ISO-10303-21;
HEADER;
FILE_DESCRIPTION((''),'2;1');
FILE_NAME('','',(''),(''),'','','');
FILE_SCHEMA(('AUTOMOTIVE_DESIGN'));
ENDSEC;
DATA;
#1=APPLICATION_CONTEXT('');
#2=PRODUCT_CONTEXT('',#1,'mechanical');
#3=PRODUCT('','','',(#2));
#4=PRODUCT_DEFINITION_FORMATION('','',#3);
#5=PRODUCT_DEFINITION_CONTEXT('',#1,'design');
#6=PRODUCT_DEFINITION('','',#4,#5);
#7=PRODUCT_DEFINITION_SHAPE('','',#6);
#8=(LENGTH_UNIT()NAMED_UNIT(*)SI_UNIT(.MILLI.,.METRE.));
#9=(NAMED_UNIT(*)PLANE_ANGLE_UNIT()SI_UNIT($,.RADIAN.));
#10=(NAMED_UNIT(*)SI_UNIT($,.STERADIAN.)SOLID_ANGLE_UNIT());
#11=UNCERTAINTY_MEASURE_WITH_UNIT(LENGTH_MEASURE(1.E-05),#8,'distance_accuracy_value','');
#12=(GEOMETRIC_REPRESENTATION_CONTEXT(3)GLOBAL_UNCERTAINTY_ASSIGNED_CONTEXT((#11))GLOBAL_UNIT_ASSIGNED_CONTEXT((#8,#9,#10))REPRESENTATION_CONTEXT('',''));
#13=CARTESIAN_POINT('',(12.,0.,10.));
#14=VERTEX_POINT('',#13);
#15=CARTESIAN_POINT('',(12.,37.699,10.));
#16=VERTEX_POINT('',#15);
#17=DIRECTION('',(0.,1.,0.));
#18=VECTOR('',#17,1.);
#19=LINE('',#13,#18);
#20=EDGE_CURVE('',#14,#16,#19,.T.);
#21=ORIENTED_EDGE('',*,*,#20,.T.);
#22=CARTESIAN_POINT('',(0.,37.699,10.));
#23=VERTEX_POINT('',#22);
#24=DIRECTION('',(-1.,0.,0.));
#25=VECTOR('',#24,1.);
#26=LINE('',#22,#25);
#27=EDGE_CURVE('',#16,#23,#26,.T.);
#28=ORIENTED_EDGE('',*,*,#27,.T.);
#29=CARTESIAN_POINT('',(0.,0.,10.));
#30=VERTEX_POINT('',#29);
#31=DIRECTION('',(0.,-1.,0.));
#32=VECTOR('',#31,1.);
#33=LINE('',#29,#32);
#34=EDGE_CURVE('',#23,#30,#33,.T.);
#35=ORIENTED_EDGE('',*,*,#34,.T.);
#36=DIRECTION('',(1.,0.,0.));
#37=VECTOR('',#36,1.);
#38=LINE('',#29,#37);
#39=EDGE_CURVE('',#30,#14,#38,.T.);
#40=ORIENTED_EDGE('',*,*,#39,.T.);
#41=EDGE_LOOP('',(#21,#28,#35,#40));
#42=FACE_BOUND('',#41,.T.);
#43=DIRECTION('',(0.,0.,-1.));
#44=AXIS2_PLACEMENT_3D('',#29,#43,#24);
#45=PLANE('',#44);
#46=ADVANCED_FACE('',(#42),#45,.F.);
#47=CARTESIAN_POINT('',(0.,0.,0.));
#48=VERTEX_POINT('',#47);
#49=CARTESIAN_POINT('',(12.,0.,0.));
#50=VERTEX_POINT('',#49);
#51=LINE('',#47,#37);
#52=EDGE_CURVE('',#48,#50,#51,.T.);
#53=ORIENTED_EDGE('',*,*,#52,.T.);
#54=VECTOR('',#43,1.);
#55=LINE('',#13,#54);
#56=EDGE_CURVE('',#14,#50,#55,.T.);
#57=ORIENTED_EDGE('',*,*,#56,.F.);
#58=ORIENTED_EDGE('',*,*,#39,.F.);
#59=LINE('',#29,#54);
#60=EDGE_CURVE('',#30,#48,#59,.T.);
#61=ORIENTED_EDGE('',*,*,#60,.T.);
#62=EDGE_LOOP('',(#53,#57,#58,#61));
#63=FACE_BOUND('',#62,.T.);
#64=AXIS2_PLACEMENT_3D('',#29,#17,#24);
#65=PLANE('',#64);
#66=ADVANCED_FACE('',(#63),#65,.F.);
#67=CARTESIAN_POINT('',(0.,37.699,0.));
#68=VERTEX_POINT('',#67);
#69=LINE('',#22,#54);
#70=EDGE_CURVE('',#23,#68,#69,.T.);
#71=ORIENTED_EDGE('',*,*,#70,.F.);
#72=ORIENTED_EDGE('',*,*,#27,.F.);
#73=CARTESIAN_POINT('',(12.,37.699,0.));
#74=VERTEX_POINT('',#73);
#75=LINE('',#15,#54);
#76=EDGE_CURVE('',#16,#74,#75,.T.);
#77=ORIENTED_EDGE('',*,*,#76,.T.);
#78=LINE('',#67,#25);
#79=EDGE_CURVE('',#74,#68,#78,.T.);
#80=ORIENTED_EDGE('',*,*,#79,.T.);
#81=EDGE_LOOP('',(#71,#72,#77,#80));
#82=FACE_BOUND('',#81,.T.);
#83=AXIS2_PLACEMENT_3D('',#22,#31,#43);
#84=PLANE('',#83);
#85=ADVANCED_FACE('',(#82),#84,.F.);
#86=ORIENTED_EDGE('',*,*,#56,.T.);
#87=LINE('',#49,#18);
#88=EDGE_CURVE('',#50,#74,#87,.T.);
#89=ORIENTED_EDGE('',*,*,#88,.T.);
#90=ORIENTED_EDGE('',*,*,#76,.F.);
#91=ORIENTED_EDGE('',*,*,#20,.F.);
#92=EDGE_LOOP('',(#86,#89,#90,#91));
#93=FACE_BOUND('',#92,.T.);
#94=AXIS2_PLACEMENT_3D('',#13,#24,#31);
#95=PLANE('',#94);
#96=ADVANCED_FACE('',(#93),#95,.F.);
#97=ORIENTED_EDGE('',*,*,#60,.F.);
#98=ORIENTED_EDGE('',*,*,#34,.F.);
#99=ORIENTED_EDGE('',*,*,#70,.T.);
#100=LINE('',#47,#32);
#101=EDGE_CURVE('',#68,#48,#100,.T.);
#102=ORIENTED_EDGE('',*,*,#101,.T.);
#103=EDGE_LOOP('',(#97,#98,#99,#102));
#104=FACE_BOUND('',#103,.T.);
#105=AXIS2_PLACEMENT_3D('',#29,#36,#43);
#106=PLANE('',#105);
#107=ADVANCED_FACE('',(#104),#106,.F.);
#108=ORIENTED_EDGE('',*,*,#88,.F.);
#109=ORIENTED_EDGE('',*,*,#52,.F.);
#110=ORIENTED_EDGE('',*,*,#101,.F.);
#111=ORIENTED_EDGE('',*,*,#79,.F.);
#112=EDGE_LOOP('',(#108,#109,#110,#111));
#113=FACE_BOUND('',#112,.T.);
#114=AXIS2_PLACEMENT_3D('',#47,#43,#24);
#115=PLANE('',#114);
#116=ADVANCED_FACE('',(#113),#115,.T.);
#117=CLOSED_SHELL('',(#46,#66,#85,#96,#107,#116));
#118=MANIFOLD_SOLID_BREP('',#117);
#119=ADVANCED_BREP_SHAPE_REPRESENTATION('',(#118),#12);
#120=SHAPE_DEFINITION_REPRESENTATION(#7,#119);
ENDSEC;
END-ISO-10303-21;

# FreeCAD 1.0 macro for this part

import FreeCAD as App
import Part
import Sketcher

V = App.Vector
Q = App.Units.Quantity

doc = App.newDocument("Part")
body = doc.addObject("PartDesign::Body", "Body")

sketch1 = body.newObject("Sketcher::SketchObject", "Sketch")
sketch1.AttachmentSupport = (doc.getObject("XY_Plane"), [""])
sketch1.MapMode = "FlatFace"
sketch1.addGeometry([
    Part.LineSegment(V(0, 37.699, 0), V(0, 0, 0)),
    Part.LineSegment(V(0, 0, 0), V(12, 0, 0)),
    Part.LineSegment(V(12, 0, 0), V(12, 37.699, 0)),
    Part.LineSegment(V(12, 37.699, 0), V(0, 37.699, 0)),
], False)
sketch1.addConstraint([
    Sketcher.Constraint("Coincident", 0, 2, 1, 1),
    Sketcher.Constraint("Coincident", 1, 2, 2, 1),
    Sketcher.Constraint("Coincident", 2, 2, 3, 1),
    Sketcher.Constraint("Coincident", 3, 2, 0, 1),
    Sketcher.Constraint("Vertical", 0),
    Sketcher.Constraint("Horizontal", 1),
    Sketcher.Constraint("Vertical", 2),
    Sketcher.Constraint("Horizontal", 3),
    Sketcher.Constraint("Coincident", 0, 2, -1, 1),
    Sketcher.Constraint("DistanceX", 1, 1, 1, 2, Q("12 mm")),
    Sketcher.Constraint("DistanceY", 0, 2, 0, 1, Q("37.699 mm")),
])
pad1 = body.newObject("PartDesign::Pad", "Pad")
pad1.Profile = sketch1
pad1.Length = 10

doc.recompute()
